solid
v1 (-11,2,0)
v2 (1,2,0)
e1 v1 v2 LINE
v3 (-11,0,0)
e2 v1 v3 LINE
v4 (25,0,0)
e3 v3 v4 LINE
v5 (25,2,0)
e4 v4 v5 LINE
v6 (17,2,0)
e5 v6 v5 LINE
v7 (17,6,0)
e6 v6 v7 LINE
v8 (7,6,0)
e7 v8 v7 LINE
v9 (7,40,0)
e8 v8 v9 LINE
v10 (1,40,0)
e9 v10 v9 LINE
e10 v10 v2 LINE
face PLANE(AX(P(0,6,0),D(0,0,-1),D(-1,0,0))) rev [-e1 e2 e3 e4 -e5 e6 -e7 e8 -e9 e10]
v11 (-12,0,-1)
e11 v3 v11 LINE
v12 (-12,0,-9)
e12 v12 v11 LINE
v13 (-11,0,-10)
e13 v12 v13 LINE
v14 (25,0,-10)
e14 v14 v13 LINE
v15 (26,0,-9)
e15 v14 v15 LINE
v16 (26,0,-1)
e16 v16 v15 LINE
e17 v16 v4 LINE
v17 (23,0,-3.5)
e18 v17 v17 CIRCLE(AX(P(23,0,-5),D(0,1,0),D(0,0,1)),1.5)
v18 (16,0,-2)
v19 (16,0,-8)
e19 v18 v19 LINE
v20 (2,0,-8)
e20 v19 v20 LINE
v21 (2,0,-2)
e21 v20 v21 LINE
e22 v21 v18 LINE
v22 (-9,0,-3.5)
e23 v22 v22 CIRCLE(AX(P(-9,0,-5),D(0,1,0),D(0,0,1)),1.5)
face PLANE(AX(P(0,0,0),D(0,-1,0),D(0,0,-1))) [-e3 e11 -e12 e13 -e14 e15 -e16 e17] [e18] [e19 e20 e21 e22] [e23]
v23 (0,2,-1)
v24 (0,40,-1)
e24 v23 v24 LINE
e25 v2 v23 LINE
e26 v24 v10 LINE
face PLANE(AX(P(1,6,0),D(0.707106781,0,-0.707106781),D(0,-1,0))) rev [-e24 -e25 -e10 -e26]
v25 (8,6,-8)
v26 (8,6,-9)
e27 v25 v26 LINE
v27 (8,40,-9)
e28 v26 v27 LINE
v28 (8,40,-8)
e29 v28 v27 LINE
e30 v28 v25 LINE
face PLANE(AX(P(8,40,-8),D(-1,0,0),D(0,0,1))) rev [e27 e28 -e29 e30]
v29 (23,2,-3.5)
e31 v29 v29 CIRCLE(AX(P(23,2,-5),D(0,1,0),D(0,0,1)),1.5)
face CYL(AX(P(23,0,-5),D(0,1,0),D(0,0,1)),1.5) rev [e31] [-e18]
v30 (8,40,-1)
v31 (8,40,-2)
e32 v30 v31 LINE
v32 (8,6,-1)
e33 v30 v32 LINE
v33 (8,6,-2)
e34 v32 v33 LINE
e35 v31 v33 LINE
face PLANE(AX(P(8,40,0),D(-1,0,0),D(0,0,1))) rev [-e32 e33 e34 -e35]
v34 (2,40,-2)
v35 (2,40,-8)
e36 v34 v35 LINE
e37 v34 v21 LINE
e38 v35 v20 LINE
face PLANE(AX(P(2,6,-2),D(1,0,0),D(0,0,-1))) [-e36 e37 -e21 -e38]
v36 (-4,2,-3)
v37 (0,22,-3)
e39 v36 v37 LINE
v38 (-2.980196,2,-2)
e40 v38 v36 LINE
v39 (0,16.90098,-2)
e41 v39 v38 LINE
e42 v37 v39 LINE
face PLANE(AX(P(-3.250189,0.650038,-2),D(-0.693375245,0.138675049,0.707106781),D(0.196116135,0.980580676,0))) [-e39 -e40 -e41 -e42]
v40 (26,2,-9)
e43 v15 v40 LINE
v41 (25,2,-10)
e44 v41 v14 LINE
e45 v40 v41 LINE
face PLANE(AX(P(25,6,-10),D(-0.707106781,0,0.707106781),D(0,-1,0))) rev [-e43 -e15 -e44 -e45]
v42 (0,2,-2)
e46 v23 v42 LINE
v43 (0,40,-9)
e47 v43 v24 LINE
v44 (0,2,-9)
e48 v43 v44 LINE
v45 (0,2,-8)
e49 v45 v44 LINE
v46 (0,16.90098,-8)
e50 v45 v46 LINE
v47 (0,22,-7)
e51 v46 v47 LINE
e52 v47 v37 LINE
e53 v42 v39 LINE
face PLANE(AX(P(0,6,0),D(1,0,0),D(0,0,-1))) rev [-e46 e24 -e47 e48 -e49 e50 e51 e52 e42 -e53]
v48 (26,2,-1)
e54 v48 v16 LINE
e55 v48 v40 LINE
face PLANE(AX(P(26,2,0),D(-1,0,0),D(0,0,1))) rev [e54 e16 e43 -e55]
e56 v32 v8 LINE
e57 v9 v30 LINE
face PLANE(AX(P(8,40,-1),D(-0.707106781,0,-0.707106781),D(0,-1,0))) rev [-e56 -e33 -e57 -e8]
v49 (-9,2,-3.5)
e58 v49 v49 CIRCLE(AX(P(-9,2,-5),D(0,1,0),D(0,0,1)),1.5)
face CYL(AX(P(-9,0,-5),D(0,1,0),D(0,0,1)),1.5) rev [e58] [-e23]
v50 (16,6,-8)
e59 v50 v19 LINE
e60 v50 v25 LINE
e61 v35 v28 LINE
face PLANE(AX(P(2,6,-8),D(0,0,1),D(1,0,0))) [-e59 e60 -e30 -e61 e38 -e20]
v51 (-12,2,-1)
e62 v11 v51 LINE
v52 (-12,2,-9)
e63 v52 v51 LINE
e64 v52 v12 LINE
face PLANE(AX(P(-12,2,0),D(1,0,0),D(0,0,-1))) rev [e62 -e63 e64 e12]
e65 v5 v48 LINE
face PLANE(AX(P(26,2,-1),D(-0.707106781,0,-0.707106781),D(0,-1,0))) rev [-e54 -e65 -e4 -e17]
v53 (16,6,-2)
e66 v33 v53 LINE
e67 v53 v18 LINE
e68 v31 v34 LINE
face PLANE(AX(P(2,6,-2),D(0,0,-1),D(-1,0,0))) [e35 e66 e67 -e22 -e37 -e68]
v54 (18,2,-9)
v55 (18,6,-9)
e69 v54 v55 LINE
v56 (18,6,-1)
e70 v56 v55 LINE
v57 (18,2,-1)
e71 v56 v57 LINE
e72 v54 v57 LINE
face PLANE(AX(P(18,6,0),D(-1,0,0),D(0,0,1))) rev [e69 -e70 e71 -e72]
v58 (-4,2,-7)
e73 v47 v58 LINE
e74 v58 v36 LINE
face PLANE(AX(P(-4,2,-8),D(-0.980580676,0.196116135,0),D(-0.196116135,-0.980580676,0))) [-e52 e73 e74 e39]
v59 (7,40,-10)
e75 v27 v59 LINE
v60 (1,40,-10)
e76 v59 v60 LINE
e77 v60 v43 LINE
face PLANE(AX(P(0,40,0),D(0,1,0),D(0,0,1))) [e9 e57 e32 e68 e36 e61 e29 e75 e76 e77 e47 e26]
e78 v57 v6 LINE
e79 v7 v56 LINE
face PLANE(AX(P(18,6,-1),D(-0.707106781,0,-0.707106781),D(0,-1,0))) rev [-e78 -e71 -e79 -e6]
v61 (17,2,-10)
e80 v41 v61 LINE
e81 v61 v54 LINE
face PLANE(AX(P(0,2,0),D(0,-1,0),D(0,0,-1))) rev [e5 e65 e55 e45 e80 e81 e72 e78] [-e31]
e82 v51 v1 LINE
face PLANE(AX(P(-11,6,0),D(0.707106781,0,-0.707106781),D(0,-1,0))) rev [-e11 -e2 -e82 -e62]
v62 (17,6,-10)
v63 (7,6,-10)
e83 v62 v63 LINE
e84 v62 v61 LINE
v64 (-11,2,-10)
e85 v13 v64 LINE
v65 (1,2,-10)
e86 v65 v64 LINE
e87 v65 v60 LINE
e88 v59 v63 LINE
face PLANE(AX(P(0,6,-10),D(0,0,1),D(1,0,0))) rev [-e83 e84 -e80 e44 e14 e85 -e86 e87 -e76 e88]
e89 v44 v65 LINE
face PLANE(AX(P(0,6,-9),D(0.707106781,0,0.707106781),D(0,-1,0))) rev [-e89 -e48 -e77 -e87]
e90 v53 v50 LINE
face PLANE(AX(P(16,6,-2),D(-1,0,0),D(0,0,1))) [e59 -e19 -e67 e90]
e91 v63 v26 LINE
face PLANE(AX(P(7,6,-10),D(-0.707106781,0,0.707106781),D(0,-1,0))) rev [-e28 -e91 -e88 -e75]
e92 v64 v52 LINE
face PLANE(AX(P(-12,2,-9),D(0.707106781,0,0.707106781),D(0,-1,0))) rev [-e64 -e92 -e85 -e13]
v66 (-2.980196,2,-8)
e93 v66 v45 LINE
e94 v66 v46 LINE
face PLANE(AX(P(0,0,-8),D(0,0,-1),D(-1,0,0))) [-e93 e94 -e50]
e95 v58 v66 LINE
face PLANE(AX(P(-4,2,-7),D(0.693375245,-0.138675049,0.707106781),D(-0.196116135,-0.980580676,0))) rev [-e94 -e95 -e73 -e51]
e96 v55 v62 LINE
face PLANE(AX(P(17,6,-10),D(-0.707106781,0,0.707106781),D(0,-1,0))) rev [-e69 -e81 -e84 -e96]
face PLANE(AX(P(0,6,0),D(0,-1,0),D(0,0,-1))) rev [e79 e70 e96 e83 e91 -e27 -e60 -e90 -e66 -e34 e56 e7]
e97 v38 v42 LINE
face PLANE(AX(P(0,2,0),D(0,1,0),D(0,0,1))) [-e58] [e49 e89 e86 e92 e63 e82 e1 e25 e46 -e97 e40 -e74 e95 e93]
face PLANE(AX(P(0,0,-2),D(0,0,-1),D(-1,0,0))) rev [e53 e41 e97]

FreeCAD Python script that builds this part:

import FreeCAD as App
import Part
import Sketcher
from FreeCAD import Vector
Q = App.Units.Quantity


def edges_at(feature, points):
    """Names of the edges that pass closest to the given points."""
    edges = feature.Shape.Edges
    near = lambda p: min(range(len(edges)), key=lambda i: edges[i].distToShape(Part.Vertex(*p))[0])
    return sorted({f"Edge{near(p) + 1}" for p in points})

doc = App.newDocument("Part")
body = doc.addObject("PartDesign::Body", "Body")

sketch1 = body.newObject("Sketcher::SketchObject", "Sketch")
sketch1.AttachmentSupport = (doc.getObject("XZ_Plane"), [""])
sketch1.MapMode = "FlatFace"
sketch1.addGeometry(Part.LineSegment(Vector(0, -10, 0), Vector(0, 0, 0)), False)
sketch1.addGeometry(Part.LineSegment(Vector(0, 0, 0), Vector(18, 0, 0)), False)
sketch1.addGeometry(Part.LineSegment(Vector(18, 0, 0), Vector(18, -10, 0)), False)
sketch1.addGeometry(Part.LineSegment(Vector(18, -10, 0), Vector(0, -10, 0)), False)
sketch1.addGeometry(Part.LineSegment(Vector(16, -2, 0), Vector(2, -2, 0)), False)
sketch1.addGeometry(Part.LineSegment(Vector(2, -2, 0), Vector(2, -8, 0)), False)
sketch1.addGeometry(Part.LineSegment(Vector(2, -8, 0), Vector(16, -8, 0)), False)
sketch1.addGeometry(Part.LineSegment(Vector(16, -8, 0), Vector(16, -2, 0)), False)
sketch1.addConstraint(Sketcher.Constraint("Coincident", 0, 2, 1, 1))
sketch1.addConstraint(Sketcher.Constraint("Coincident", 1, 2, 2, 1))
sketch1.addConstraint(Sketcher.Constraint("Coincident", 2, 2, 3, 1))
sketch1.addConstraint(Sketcher.Constraint("Coincident", 3, 2, 0, 1))
sketch1.addConstraint(Sketcher.Constraint("Coincident", 4, 2, 5, 1))
sketch1.addConstraint(Sketcher.Constraint("Coincident", 5, 2, 6, 1))
sketch1.addConstraint(Sketcher.Constraint("Coincident", 6, 2, 7, 1))
sketch1.addConstraint(Sketcher.Constraint("Coincident", 7, 2, 4, 1))
sketch1.addConstraint(Sketcher.Constraint("Vertical", 0))
sketch1.addConstraint(Sketcher.Constraint("Horizontal", 1))
sketch1.addConstraint(Sketcher.Constraint("Vertical", 2))
sketch1.addConstraint(Sketcher.Constraint("Horizontal", 3))
sketch1.addConstraint(Sketcher.Constraint("Horizontal", 4))
sketch1.addConstraint(Sketcher.Constraint("Vertical", 5))
sketch1.addConstraint(Sketcher.Constraint("Horizontal", 6))
sketch1.addConstraint(Sketcher.Constraint("Vertical", 7))
sketch1.addConstraint(Sketcher.Constraint("Coincident", 0, 2, -1, 1))
sketch1.addConstraint(Sketcher.Constraint("DistanceX", 1, 1, 1, 2, Q("18 mm")))
sketch1.addConstraint(Sketcher.Constraint("DistanceX", 4, 2, 4, 1, Q("14 mm")))
sketch1.addConstraint(Sketcher.Constraint("DistanceY", 0, 1, 0, 2, Q("10 mm")))
sketch1.addConstraint(Sketcher.Constraint("DistanceY", 5, 2, 5, 1, Q("6 mm")))
sketch1.addConstraint(Sketcher.Constraint("DistanceX", -1, 1, 4, 2, Q("2 mm")))
sketch1.addConstraint(Sketcher.Constraint("DistanceY", 4, 2, -1, 1, Q("2 mm")))
pad1 = body.newObject("PartDesign::Pad", "Pad")
pad1.Profile = sketch1
pad1.Length = 6
pad1.Reversed = True

sketch2 = body.newObject("Sketcher::SketchObject", "Sketch001")
sketch2.AttachmentSupport = (doc.getObject("XZ_Plane"), [""])
sketch2.MapMode = "FlatFace"
sketch2.AttachmentOffset = App.Placement(Vector(0, 0, -6), App.Rotation())
sketch2.addGeometry(Part.LineSegment(Vector(0, -10, 0), Vector(0, 0, 0)), False)
sketch2.addGeometry(Part.LineSegment(Vector(0, 0, 0), Vector(8, 0, 0)), False)
sketch2.addGeometry(Part.LineSegment(Vector(8, 0, 0), Vector(8, -2, 0)), False)
sketch2.addGeometry(Part.LineSegment(Vector(8, -2, 0), Vector(2, -2, 0)), False)
sketch2.addGeometry(Part.LineSegment(Vector(2, -2, 0), Vector(2, -8, 0)), False)
sketch2.addGeometry(Part.LineSegment(Vector(2, -8, 0), Vector(8, -8, 0)), False)
sketch2.addGeometry(Part.LineSegment(Vector(8, -8, 0), Vector(8, -10, 0)), False)
sketch2.addGeometry(Part.LineSegment(Vector(8, -10, 0), Vector(0, -10, 0)), False)
sketch2.addConstraint(Sketcher.Constraint("Coincident", 0, 2, 1, 1))
sketch2.addConstraint(Sketcher.Constraint("Coincident", 1, 2, 2, 1))
sketch2.addConstraint(Sketcher.Constraint("Coincident", 2, 2, 3, 1))
sketch2.addConstraint(Sketcher.Constraint("Coincident", 3, 2, 4, 1))
sketch2.addConstraint(Sketcher.Constraint("Coincident", 4, 2, 5, 1))
sketch2.addConstraint(Sketcher.Constraint("Coincident", 5, 2, 6, 1))
sketch2.addConstraint(Sketcher.Constraint("Coincident", 6, 2, 7, 1))
sketch2.addConstraint(Sketcher.Constraint("Coincident", 7, 2, 0, 1))
sketch2.addConstraint(Sketcher.Constraint("Vertical", 0))
sketch2.addConstraint(Sketcher.Constraint("Horizontal", 1))
sketch2.addConstraint(Sketcher.Constraint("Vertical", 2))
sketch2.addConstraint(Sketcher.Constraint("Horizontal", 3))
sketch2.addConstraint(Sketcher.Constraint("Vertical", 4))
sketch2.addConstraint(Sketcher.Constraint("Horizontal", 5))
sketch2.addConstraint(Sketcher.Constraint("Vertical", 6))
sketch2.addConstraint(Sketcher.Constraint("Horizontal", 7))
sketch2.addConstraint(Sketcher.Constraint("Coincident", 0, 2, -1, 1))
sketch2.addConstraint(Sketcher.Constraint("Vertical", 2, 2, 5, 2))
sketch2.addConstraint(Sketcher.Constraint("Equal", 5, 4))
sketch2.addConstraint(Sketcher.Constraint("Equal", 2, 6))
sketch2.addConstraint(Sketcher.Constraint("DistanceX", 1, 1, 1, 2, Q("8 mm")))
sketch2.addConstraint(Sketcher.Constraint("DistanceX", 3, 2, 3, 1, Q("6 mm")))
sketch2.addConstraint(Sketcher.Constraint("DistanceY", 0, 1, 0, 2, Q("10 mm")))
pad2 = body.newObject("PartDesign::Pad", "Pad001")
pad2.Profile = sketch2
pad2.Length = 34
pad2.Reversed = True

sketch3 = body.newObject("Sketcher::SketchObject", "Sketch002")
sketch3.AttachmentSupport = (doc.getObject("XZ_Plane"), [""])
sketch3.MapMode = "FlatFace"
sketch3.addGeometry(Part.LineSegment(Vector(-12, -10, 0), Vector(-12, 0, 0)), False)
sketch3.addGeometry(Part.LineSegment(Vector(-12, 0, 0), Vector(0, 0, 0)), False)
sketch3.addGeometry(Part.LineSegment(Vector(0, 0, 0), Vector(0, -10, 0)), False)
sketch3.addGeometry(Part.LineSegment(Vector(0, -10, 0), Vector(-12, -10, 0)), False)
sketch3.addGeometry(Part.LineSegment(Vector(18, -10, 0), Vector(18, 0, 0)), False)
sketch3.addGeometry(Part.LineSegment(Vector(18, 0, 0), Vector(26, 0, 0)), False)
sketch3.addGeometry(Part.LineSegment(Vector(26, 0, 0), Vector(26, -10, 0)), False)
sketch3.addGeometry(Part.LineSegment(Vector(26, -10, 0), Vector(18, -10, 0)), False)
sketch3.addConstraint(Sketcher.Constraint("Coincident", 0, 2, 1, 1))
sketch3.addConstraint(Sketcher.Constraint("Coincident", 1, 2, 2, 1))
sketch3.addConstraint(Sketcher.Constraint("Coincident", 2, 2, 3, 1))
sketch3.addConstraint(Sketcher.Constraint("Coincident", 3, 2, 0, 1))
sketch3.addConstraint(Sketcher.Constraint("Coincident", 4, 2, 5, 1))
sketch3.addConstraint(Sketcher.Constraint("Coincident", 5, 2, 6, 1))
sketch3.addConstraint(Sketcher.Constraint("Coincident", 6, 2, 7, 1))
sketch3.addConstraint(Sketcher.Constraint("Coincident", 7, 2, 4, 1))
sketch3.addConstraint(Sketcher.Constraint("Vertical", 0))
sketch3.addConstraint(Sketcher.Constraint("Horizontal", 1))
sketch3.addConstraint(Sketcher.Constraint("Vertical", 2))
sketch3.addConstraint(Sketcher.Constraint("Horizontal", 3))
sketch3.addConstraint(Sketcher.Constraint("Vertical", 4))
sketch3.addConstraint(Sketcher.Constraint("Horizontal", 5))
sketch3.addConstraint(Sketcher.Constraint("Vertical", 6))
sketch3.addConstraint(Sketcher.Constraint("Horizontal", 7))
sketch3.addConstraint(Sketcher.Constraint("Coincident", 1, 2, -1, 1))
sketch3.addConstraint(Sketcher.Constraint("PointOnObject", 4, 2, -1))
sketch3.addConstraint(Sketcher.Constraint("Horizontal", 3, 2, 6, 2))
sketch3.addConstraint(Sketcher.Constraint("DistanceX", 1, 1, 1, 2, Q("12 mm")))
sketch3.addConstraint(Sketcher.Constraint("DistanceX", 5, 1, 5, 2, Q("8 mm")))
sketch3.addConstraint(Sketcher.Constraint("DistanceY", 0, 1, 0, 2, Q("10 mm")))
sketch3.addConstraint(Sketcher.Constraint("DistanceX", -1, 1, 4, 2, Q("18 mm")))
pad3 = body.newObject("PartDesign::Pad", "Pad002")
pad3.Profile = sketch3
pad3.Length = 2
pad3.Reversed = True

sketch4 = body.newObject("Sketcher::SketchObject", "Sketch003")
sketch4.AttachmentSupport = (doc.getObject("XY_Plane"), [""])
sketch4.MapMode = "FlatFace"
sketch4.AttachmentOffset = App.Placement(Vector(0, 0, -5), App.Rotation())
sketch4.addGeometry(Part.LineSegment(Vector(-4, 2, 0), Vector(0, 2, 0)), False)
sketch4.addGeometry(Part.LineSegment(Vector(0, 2, 0), Vector(0, 22, 0)), False)
sketch4.addGeometry(Part.LineSegment(Vector(0, 22, 0), Vector(-4, 2, 0)), False)
sketch4.addConstraint(Sketcher.Constraint("Coincident", 0, 2, 1, 1))
sketch4.addConstraint(Sketcher.Constraint("Coincident", 1, 2, 2, 1))
sketch4.addConstraint(Sketcher.Constraint("Coincident", 2, 2, 0, 1))
sketch4.addConstraint(Sketcher.Constraint("Horizontal", 0))
sketch4.addConstraint(Sketcher.Constraint("Vertical", 1))
sketch4.addConstraint(Sketcher.Constraint("PointOnObject", 0, 2, -2))
sketch4.addConstraint(Sketcher.Constraint("DistanceX", 0, 1, 0, 2, Q("4 mm")))
sketch4.addConstraint(Sketcher.Constraint("DistanceY", 1, 1, 1, 2, Q("20 mm")))
sketch4.addConstraint(Sketcher.Constraint("DistanceY", -1, 1, 0, 2, Q("2 mm")))
pad4 = body.newObject("PartDesign::Pad", "Pad003")
pad4.Profile = sketch4
pad4.Type = "TwoLengths"
pad4.Length = 3
pad4.Length2 = 3
doc.recompute()

chamfer = body.newObject("PartDesign::Chamfer", "Chamfer")
chamfer.Base = (pad4, edges_at(pad4, [
    (8, 23, -10),
    (8, 23, 0),
    (-12, 1, -10),
    (-12, 1, 0),
    (26, 1, 0),
    (26, 1, -10),
    (0, 21, -10),
    (18, 4, -10),
    (18, 4, 0),
    (0, 21, 0),
]))
chamfer.Size = 1
doc.recompute()

chamfer2 = body.newObject("PartDesign::Chamfer", "Chamfer001")
chamfer2.Base = (chamfer, edges_at(chamfer, [(-2, 12, -8), (-2, 12, -2)]))
chamfer2.Size = 1

sketch5 = body.newObject("Sketcher::SketchObject", "Sketch004")
sketch5.AttachmentSupport = (doc.getObject("XZ_Plane"), [""])
sketch5.MapMode = "FlatFace"
sketch5.AttachmentOffset = App.Placement(Vector(0, 0, -2), App.Rotation())
sketch5.addGeometry(Part.Circle(Vector(-9, -5, 0), Vector(0, 0, 1), 1.5), False)
sketch5.addGeometry(Part.Circle(Vector(23, -5, 0), Vector(0, 0, 1), 1.5), False)
sketch5.addConstraint(Sketcher.Constraint("Equal", 0, 1))
sketch5.addConstraint(Sketcher.Constraint("Horizontal", 0, 3, 1, 3))
sketch5.addConstraint(Sketcher.Constraint("Diameter", 0, Q("3 mm")))
sketch5.addConstraint(Sketcher.Constraint("DistanceX", 0, 3, -1, 1, Q("9 mm")))
sketch5.addConstraint(Sketcher.Constraint("DistanceY", 0, 3, -1, 1, Q("5 mm")))
sketch5.addConstraint(Sketcher.Constraint("DistanceX", -1, 1, 1, 3, Q("23 mm")))
pocket1 = body.newObject("PartDesign::Pocket", "Pocket")
pocket1.Profile = sketch5
pocket1.Type = "ThroughAll"
pocket1.Reversed = True

doc.recompute()
